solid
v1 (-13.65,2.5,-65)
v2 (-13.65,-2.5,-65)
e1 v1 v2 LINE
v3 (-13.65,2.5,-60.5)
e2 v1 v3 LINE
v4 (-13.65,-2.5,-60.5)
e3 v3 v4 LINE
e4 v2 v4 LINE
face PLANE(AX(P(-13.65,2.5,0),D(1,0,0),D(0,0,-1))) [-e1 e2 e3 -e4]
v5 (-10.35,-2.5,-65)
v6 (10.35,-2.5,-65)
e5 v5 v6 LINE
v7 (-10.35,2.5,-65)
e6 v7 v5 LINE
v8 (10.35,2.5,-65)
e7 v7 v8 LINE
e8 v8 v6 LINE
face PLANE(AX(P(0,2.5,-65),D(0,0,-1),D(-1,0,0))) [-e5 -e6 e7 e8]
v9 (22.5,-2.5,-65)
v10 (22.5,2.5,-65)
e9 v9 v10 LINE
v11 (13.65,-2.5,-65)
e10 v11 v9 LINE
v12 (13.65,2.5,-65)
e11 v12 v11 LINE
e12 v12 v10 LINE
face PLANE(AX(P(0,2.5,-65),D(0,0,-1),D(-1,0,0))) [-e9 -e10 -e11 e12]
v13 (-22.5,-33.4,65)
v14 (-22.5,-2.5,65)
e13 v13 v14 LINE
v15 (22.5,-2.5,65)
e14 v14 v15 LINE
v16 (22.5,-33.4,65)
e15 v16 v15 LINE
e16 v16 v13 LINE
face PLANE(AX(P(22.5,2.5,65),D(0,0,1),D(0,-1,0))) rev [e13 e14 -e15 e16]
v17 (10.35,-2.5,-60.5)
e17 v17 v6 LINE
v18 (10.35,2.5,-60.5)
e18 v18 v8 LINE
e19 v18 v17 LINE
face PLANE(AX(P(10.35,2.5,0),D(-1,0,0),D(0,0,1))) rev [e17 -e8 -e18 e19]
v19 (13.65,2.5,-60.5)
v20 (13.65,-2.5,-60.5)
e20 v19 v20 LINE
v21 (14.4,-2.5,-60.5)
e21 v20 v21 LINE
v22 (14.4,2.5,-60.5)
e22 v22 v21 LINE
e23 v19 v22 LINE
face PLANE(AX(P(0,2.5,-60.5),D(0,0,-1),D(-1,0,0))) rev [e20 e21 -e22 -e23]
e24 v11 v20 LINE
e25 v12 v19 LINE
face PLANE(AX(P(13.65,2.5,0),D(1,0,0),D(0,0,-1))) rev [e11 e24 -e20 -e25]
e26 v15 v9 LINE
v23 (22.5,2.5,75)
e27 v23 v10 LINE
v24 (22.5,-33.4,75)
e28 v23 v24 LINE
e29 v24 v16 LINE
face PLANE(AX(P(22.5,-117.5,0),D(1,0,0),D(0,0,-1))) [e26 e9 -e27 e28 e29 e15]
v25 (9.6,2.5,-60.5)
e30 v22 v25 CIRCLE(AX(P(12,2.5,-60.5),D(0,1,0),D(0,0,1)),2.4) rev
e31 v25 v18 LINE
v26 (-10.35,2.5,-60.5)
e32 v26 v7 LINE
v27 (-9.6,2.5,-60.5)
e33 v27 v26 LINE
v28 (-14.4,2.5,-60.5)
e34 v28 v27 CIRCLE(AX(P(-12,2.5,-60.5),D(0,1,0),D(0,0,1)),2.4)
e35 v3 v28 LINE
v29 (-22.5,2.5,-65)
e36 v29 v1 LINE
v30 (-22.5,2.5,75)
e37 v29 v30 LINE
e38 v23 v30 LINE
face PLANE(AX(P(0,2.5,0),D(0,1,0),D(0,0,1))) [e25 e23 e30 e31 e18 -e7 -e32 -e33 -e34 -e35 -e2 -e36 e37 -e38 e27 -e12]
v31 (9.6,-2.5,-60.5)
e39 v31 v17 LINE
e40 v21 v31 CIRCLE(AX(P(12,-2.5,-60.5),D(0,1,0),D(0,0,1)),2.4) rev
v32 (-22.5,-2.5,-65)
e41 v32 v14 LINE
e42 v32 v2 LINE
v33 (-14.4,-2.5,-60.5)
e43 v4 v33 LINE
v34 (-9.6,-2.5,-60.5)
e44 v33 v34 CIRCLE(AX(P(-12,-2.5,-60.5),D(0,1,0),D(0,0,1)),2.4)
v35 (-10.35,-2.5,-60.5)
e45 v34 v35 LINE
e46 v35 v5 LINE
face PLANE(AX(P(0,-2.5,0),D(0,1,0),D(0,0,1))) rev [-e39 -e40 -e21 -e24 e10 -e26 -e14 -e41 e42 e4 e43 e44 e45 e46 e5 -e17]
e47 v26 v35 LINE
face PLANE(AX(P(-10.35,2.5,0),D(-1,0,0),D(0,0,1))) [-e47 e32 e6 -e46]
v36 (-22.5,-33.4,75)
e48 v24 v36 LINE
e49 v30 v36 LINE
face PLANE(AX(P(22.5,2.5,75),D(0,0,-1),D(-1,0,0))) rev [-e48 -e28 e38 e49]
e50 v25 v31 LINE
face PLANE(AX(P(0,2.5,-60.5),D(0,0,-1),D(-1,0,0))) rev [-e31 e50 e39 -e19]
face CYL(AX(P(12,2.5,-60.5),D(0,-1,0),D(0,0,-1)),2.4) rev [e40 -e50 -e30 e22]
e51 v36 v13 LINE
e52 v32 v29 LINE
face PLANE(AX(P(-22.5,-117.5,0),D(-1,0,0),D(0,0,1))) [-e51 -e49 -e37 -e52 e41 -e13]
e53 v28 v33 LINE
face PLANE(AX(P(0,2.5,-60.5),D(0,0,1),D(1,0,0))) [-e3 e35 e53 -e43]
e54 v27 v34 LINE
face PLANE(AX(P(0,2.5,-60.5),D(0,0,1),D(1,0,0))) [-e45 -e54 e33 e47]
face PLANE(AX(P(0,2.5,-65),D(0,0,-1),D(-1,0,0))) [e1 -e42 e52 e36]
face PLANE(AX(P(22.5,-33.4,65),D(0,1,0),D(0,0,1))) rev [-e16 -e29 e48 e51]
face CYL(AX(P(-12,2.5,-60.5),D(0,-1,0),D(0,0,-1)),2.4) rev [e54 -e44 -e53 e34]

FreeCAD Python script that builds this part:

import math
import FreeCAD as App
import Part
import Sketcher
from FreeCAD import Vector


def add_polygon(sketch, points):
    """Adds a closed chain of lines whose ends are joined by coincident constraints."""
    first, n = sketch.GeometryCount, len(points)
    for a, b in zip(points, points[1:] + points[:1]):
        sketch.addGeometry(Part.LineSegment(App.Vector(*a, 0), App.Vector(*b, 0)), False)
    for i in range(n):
        sketch.addConstraint(Sketcher.Constraint("Coincident", first + i, 2, first + (i + 1) % n, 1))

doc = App.newDocument("Part")
params = doc.addObject("Spreadsheet::Sheet", "Params")
for row, (alias, value) in enumerate([
    ("sketch1_radius", "2.4 mm"),
    ("sketch1_height", "130 mm"),
    ("sketch1_width", "20.7 mm"),
    ("sketch1_height2", "4.5 mm"),
    ("sketch1_width2", "153.57 mm"),
    ("pad1_length", "5 mm"),
    ("sketch2_height", "130 mm"),
    ("pocket1_length", "120 mm"),
    ("sketch3_height", "10 mm"),
    ("sketch3_width", "35.9 mm"),
    ("pad2_length", "45 mm"),
], start=1):
    params.set(f"A{row}", alias)
    params.set(f"B{row}", "=" + value)
    params.setAlias(f"B{row}", alias)

body = doc.addObject("PartDesign::Body", "Body")

# Sketch on XZ plane
sketch1 = body.newObject("Sketcher::SketchObject", "Sketch")
sketch1.AttachmentSupport = (doc.getObject("XZ_Plane"), [""])
sketch1.MapMode = "FlatFace"
sketch1.addGeometry(Part.LineSegment(Vector(-13.65, -65, 0), Vector(-76.785, -65, 0)), False)
sketch1.addGeometry(Part.LineSegment(Vector(-76.785, -65, 0), Vector(-76.785, 65, 0)), False)
sketch1.addGeometry(Part.LineSegment(Vector(-76.785, 65, 0), Vector(76.785, 65, 0)), False)
sketch1.addGeometry(Part.LineSegment(Vector(76.785, 65, 0), Vector(76.785, -65, 0)), False)
sketch1.addGeometry(Part.LineSegment(Vector(76.785, -65, 0), Vector(13.65, -65, 0)), False)
sketch1.addGeometry(Part.LineSegment(Vector(13.65, -65, 0), Vector(13.65, -60.5, 0)), False)
sketch1.addGeometry(Part.LineSegment(Vector(13.65, -60.5, 0), Vector(14.4, -60.5, 0)), False)
sketch1.addGeometry(Part.ArcOfCircle(Part.Circle(Vector(12, -60.5, 0), Vector(0, 0, 1), 2.4), math.radians(0), math.radians(180)), False)
sketch1.addGeometry(Part.LineSegment(Vector(9.6, -60.5, 0), Vector(10.35, -60.5, 0)), False)
sketch1.addGeometry(Part.LineSegment(Vector(10.35, -60.5, 0), Vector(10.35, -65, 0)), False)
sketch1.addGeometry(Part.LineSegment(Vector(10.35, -65, 0), Vector(-10.35, -65, 0)), False)
sketch1.addGeometry(Part.LineSegment(Vector(-10.35, -65, 0), Vector(-10.35, -60.5, 0)), False)
sketch1.addGeometry(Part.LineSegment(Vector(-10.35, -60.5, 0), Vector(-9.6, -60.5, 0)), False)
sketch1.addGeometry(Part.ArcOfCircle(Part.Circle(Vector(-12, -60.5, 0), Vector(0, 0, 1), 2.4), math.radians(0), math.radians(180)), False)
sketch1.addGeometry(Part.LineSegment(Vector(-14.4, -60.5, 0), Vector(-13.65, -60.5, 0)), False)
sketch1.addGeometry(Part.LineSegment(Vector(-13.65, -60.5, 0), Vector(-13.65, -65, 0)), False)
sketch1.addConstraint(Sketcher.Constraint("Coincident", 0, 2, 1, 1))
sketch1.addConstraint(Sketcher.Constraint("Coincident", 1, 2, 2, 1))
sketch1.addConstraint(Sketcher.Constraint("Coincident", 2, 2, 3, 1))
sketch1.addConstraint(Sketcher.Constraint("Coincident", 3, 2, 4, 1))
sketch1.addConstraint(Sketcher.Constraint("Coincident", 4, 2, 5, 1))
sketch1.addConstraint(Sketcher.Constraint("Coincident", 5, 2, 6, 1))
sketch1.addConstraint(Sketcher.Constraint("Coincident", 6, 2, 7, 1))
sketch1.addConstraint(Sketcher.Constraint("Coincident", 7, 2, 8, 1))
sketch1.addConstraint(Sketcher.Constraint("Coincident", 8, 2, 9, 1))
sketch1.addConstraint(Sketcher.Constraint("Coincident", 9, 2, 10, 1))
sketch1.addConstraint(Sketcher.Constraint("Coincident", 10, 2, 11, 1))
sketch1.addConstraint(Sketcher.Constraint("Coincident", 11, 2, 12, 1))
sketch1.addConstraint(Sketcher.Constraint("Coincident", 12, 2, 13, 1))
sketch1.addConstraint(Sketcher.Constraint("Coincident", 13, 2, 14, 1))
sketch1.addConstraint(Sketcher.Constraint("Coincident", 14, 2, 15, 1))
sketch1.addConstraint(Sketcher.Constraint("Coincident", 15, 2, 0, 1))
sketch1.addConstraint(Sketcher.Constraint("Horizontal", 0))
sketch1.addConstraint(Sketcher.Constraint("Vertical", 1))
sketch1.addConstraint(Sketcher.Constraint("Horizontal", 2))
sketch1.addConstraint(Sketcher.Constraint("Vertical", 3))
sketch1.addConstraint(Sketcher.Constraint("Horizontal", 4))
sketch1.addConstraint(Sketcher.Constraint("Vertical", 5))
sketch1.addConstraint(Sketcher.Constraint("Horizontal", 6))
sketch1.addConstraint(Sketcher.Constraint("Horizontal", 8))
sketch1.addConstraint(Sketcher.Constraint("Vertical", 9))
sketch1.addConstraint(Sketcher.Constraint("Horizontal", 10))
sketch1.addConstraint(Sketcher.Constraint("Vertical", 11))
sketch1.addConstraint(Sketcher.Constraint("Horizontal", 12))
sketch1.addConstraint(Sketcher.Constraint("Horizontal", 14))
sketch1.addConstraint(Sketcher.Constraint("Vertical", 15))
sketch1.addConstraint(Sketcher.Constraint("Equal", 7, 13))
sketch1.addConstraint(Sketcher.Constraint("Symmetric", 0, 2, 2, 2, -1, 1))
sketch1.addConstraint(Sketcher.Constraint("Symmetric", 7, 3, 13, 3, -2))
sketch1.addConstraint(Sketcher.Constraint("Symmetric", 8, 2, 11, 2, -2))
sketch1.addConstraint(Sketcher.Constraint("Symmetric", 5, 2, 14, 2, -2))
sketch1.addConstraint(Sketcher.Constraint("Horizontal", 0, 2, 3, 2))
sketch1.addConstraint(Sketcher.Constraint("Horizontal", 13, 3, 5, 2))
sketch1.addConstraint(Sketcher.Constraint("Horizontal", 6, 2, 7, 2))
sketch1.addConstraint(Sketcher.Constraint("Horizontal", 4, 2, 9, 2))
sketch1.addConstraint(Sketcher.Constraint("Equal", 6, 8))
sketch1.addConstraint(Sketcher.Constraint("Radius", 7, 2.4))
sketch1.addConstraint(Sketcher.Constraint("DistanceY", 1, 1, 1, 2, 130.0))
sketch1.addConstraint(Sketcher.Constraint("DistanceX", 10, 2, 10, 1, 20.7))
sketch1.addConstraint(Sketcher.Constraint("DistanceY", 5, 1, 5, 2, 4.5))
sketch1.addConstraint(Sketcher.Constraint("DistanceX", -1, 1, 7, 3, 12.0))
sketch1.addConstraint(Sketcher.Constraint("DistanceX", 2, 1, 2, 2, 153.57))
sketch1.setExpression("Constraints[40]", "Params.sketch1_radius")
sketch1.setExpression("Constraints[41]", "Params.sketch1_height")
sketch1.setExpression("Constraints[42]", "Params.sketch1_width")
sketch1.setExpression("Constraints[43]", "Params.sketch1_height2")
sketch1.setExpression("Constraints[45]", "Params.sketch1_width2")
pad1 = body.newObject("PartDesign::Pad", "Pad")
pad1.Profile = sketch1
pad1.setExpression("Length", "Params.pad1_length")
pad1.Midplane = True

# Sketch on XZ plane
sketch2 = body.newObject("Sketcher::SketchObject", "Sketch001")
sketch2.AttachmentSupport = (doc.getObject("XZ_Plane"), [""])
sketch2.MapMode = "FlatFace"
sketch2.AttachmentOffset = App.Placement(Vector(0, 0, -2.5), App.Rotation())
add_polygon(sketch2, [(-76.785, -65), (-76.785, 65), (-22.5, 65), (-22.5, -65)])  # lines 0-3
add_polygon(sketch2, [(22.5, -65), (22.5, 65), (76.785, 65), (76.785, -65)])  # lines 4-7
sketch2.addConstraint(Sketcher.Constraint("Vertical", 0))
sketch2.addConstraint(Sketcher.Constraint("Horizontal", 1))
sketch2.addConstraint(Sketcher.Constraint("Vertical", 2))
sketch2.addConstraint(Sketcher.Constraint("Horizontal", 3))
sketch2.addConstraint(Sketcher.Constraint("Vertical", 4))
sketch2.addConstraint(Sketcher.Constraint("Horizontal", 5))
sketch2.addConstraint(Sketcher.Constraint("Vertical", 6))
sketch2.addConstraint(Sketcher.Constraint("Horizontal", 7))
sketch2.addConstraint(Sketcher.Constraint("Symmetric", 2, 2, 4, 2, -1, 1))
sketch2.addConstraint(Sketcher.Constraint("Symmetric", 0, 2, 6, 2, -1, 1))
sketch2.addConstraint(Sketcher.Constraint("Horizontal", 1, 2, 4, 2))
sketch2.addConstraint(Sketcher.Constraint("DistanceY", 0, 1, 0, 2, 130.0))
sketch2.addConstraint(Sketcher.Constraint("DistanceX", 1, 2, 4, 2, 45.0))
sketch2.addConstraint(Sketcher.Constraint("DistanceX", 1, 1, 1, 2, 54.285))
sketch2.setExpression("Constraints[19]", "Params.sketch2_height")
pocket1 = body.newObject("PartDesign::Pocket", "Pocket")
pocket1.Profile = sketch2
pocket1.setExpression("Length", "Params.pocket1_length")
pocket1.Reversed = True

# Sketch on YZ plane
sketch3 = body.newObject("Sketcher::SketchObject", "Sketch002")
sketch3.AttachmentSupport = (doc.getObject("YZ_Plane"), [""])
sketch3.MapMode = "FlatFace"
add_polygon(sketch3, [(2.5, 75), (-33.4, 75), (-33.4, 65), (2.5, 65)])  # lines 0-3
sketch3.addConstraint(Sketcher.Constraint("Horizontal", 0))
sketch3.addConstraint(Sketcher.Constraint("Vertical", 1))
sketch3.addConstraint(Sketcher.Constraint("Horizontal", 2))
sketch3.addConstraint(Sketcher.Constraint("Vertical", 3))
sketch3.addConstraint(Sketcher.Constraint("DistanceY", 1, 2, 1, 1, 10.0))
sketch3.addConstraint(Sketcher.Constraint("DistanceX", 0, 2, 0, 1, 35.9))
sketch3.addConstraint(Sketcher.Constraint("DistanceY", -1, 1, 0, 2, 75.0))
sketch3.addConstraint(Sketcher.Constraint("DistanceX", 0, 2, -1, 1, 33.4))
sketch3.setExpression("Constraints[8]", "Params.sketch3_height")
sketch3.setExpression("Constraints[9]", "Params.sketch3_width")
pad2 = body.newObject("PartDesign::Pad", "Pad001")
pad2.Profile = sketch3
pad2.setExpression("Length", "Params.pad2_length")
pad2.Midplane = True

doc.recompute()
